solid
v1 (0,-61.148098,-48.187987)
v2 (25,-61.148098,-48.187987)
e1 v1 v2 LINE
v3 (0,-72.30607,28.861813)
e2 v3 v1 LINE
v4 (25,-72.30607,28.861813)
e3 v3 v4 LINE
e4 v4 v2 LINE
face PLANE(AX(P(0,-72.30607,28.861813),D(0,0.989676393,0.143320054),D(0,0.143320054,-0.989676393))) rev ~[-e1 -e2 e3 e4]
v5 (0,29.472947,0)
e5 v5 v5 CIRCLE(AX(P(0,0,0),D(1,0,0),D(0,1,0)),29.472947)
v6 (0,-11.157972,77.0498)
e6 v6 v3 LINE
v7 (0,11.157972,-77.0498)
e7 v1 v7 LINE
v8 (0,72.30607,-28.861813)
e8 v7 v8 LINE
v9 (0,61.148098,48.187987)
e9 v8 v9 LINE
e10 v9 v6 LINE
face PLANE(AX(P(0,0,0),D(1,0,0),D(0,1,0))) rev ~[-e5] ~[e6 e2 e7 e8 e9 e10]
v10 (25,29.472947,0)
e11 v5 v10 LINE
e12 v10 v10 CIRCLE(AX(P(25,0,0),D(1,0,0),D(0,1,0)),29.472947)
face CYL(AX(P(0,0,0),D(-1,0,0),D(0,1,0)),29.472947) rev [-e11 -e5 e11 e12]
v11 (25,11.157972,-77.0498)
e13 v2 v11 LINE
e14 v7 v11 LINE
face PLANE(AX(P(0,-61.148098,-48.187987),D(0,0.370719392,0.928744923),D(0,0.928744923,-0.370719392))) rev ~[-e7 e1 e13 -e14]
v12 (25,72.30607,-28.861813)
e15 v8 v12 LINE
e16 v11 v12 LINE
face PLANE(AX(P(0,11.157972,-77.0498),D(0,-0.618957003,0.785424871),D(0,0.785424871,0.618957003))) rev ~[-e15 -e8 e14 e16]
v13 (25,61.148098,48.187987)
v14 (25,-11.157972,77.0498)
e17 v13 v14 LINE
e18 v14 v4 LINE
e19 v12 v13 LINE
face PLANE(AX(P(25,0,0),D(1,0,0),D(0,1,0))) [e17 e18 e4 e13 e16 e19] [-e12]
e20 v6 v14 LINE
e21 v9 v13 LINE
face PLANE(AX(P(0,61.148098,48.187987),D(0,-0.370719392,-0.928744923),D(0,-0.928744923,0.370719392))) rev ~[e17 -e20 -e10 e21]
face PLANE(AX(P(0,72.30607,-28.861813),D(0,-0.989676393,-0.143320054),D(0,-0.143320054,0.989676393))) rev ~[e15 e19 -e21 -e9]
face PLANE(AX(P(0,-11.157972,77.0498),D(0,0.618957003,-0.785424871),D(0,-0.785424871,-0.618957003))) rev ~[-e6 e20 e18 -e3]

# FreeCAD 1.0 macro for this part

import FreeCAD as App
import Part
import Sketcher

V = App.Vector
Q = App.Units.Quantity

doc = App.newDocument("Part")
body = doc.addObject("PartDesign::Body", "Body")

# Sketch on YZ plane
sketch1 = doc.addObject("Sketcher::SketchObject", "Sketch")
body.addObject(sketch1)
sketch1.AttachmentSupport = (doc.YZ_Plane, [""])
sketch1.MapMode = "FlatFace"
sketch1.addGeometry([
    Part.LineSegment(V(11, -77, 0), V(72, -29, 0)),  # 0
    Part.LineSegment(V(72, -29, 0), V(61, 48, 0)),  # 1
    Part.LineSegment(V(61, 48, 0), V(-11, 77, 0)),  # 2
    Part.LineSegment(V(-11, 77, 0), V(-72, 29, 0)),  # 3
    Part.LineSegment(V(-72, 29, 0), V(-61, -48, 0)),  # 4
    Part.LineSegment(V(-61, -48, 0), V(11, -77, 0)),  # 5
    Part.Circle(V(0, 0, 0), V(0, 0, 1), 29),  # 6
], False)
sketch1.addConstraint([
    Sketcher.Constraint("Coincident", 0, 2, 1, 1),
    Sketcher.Constraint("Coincident", 1, 2, 2, 1),
    Sketcher.Constraint("Coincident", 2, 2, 3, 1),
    Sketcher.Constraint("Coincident", 3, 2, 4, 1),
    Sketcher.Constraint("Coincident", 4, 2, 5, 1),
    Sketcher.Constraint("Coincident", 5, 2, 0, 1),
    Sketcher.Constraint("Coincident", 6, 3, -1, 1),
    Sketcher.Constraint("Symmetric", 0, 2, 3, 2, -1, 1),
    Sketcher.Constraint("Symmetric", 1, 2, 4, 2, -1, 1),
    Sketcher.Constraint("Symmetric", 2, 2, 5, 2, -1, 1),
    Sketcher.Constraint("Equal", 0, 1),
    Sketcher.Constraint("Equal", 1, 2),
    Sketcher.Constraint("Angle", 0, Q("38.240009 deg")),
    Sketcher.Constraint("Angle", 1, Q("98.240009 deg")),
    Sketcher.Constraint("Angle", 2, Q("158.240009 deg")),
    Sketcher.Constraint("Diameter", 6, 58.945894),
    Sketcher.Constraint("DistanceY", -1, 1, 2, 2, 77.0498),
])
pad1 = doc.addObject("PartDesign::Pad", "Pad")
body.addObject(pad1)
pad1.Profile = sketch1
pad1.Length = 25

doc.recompute()
